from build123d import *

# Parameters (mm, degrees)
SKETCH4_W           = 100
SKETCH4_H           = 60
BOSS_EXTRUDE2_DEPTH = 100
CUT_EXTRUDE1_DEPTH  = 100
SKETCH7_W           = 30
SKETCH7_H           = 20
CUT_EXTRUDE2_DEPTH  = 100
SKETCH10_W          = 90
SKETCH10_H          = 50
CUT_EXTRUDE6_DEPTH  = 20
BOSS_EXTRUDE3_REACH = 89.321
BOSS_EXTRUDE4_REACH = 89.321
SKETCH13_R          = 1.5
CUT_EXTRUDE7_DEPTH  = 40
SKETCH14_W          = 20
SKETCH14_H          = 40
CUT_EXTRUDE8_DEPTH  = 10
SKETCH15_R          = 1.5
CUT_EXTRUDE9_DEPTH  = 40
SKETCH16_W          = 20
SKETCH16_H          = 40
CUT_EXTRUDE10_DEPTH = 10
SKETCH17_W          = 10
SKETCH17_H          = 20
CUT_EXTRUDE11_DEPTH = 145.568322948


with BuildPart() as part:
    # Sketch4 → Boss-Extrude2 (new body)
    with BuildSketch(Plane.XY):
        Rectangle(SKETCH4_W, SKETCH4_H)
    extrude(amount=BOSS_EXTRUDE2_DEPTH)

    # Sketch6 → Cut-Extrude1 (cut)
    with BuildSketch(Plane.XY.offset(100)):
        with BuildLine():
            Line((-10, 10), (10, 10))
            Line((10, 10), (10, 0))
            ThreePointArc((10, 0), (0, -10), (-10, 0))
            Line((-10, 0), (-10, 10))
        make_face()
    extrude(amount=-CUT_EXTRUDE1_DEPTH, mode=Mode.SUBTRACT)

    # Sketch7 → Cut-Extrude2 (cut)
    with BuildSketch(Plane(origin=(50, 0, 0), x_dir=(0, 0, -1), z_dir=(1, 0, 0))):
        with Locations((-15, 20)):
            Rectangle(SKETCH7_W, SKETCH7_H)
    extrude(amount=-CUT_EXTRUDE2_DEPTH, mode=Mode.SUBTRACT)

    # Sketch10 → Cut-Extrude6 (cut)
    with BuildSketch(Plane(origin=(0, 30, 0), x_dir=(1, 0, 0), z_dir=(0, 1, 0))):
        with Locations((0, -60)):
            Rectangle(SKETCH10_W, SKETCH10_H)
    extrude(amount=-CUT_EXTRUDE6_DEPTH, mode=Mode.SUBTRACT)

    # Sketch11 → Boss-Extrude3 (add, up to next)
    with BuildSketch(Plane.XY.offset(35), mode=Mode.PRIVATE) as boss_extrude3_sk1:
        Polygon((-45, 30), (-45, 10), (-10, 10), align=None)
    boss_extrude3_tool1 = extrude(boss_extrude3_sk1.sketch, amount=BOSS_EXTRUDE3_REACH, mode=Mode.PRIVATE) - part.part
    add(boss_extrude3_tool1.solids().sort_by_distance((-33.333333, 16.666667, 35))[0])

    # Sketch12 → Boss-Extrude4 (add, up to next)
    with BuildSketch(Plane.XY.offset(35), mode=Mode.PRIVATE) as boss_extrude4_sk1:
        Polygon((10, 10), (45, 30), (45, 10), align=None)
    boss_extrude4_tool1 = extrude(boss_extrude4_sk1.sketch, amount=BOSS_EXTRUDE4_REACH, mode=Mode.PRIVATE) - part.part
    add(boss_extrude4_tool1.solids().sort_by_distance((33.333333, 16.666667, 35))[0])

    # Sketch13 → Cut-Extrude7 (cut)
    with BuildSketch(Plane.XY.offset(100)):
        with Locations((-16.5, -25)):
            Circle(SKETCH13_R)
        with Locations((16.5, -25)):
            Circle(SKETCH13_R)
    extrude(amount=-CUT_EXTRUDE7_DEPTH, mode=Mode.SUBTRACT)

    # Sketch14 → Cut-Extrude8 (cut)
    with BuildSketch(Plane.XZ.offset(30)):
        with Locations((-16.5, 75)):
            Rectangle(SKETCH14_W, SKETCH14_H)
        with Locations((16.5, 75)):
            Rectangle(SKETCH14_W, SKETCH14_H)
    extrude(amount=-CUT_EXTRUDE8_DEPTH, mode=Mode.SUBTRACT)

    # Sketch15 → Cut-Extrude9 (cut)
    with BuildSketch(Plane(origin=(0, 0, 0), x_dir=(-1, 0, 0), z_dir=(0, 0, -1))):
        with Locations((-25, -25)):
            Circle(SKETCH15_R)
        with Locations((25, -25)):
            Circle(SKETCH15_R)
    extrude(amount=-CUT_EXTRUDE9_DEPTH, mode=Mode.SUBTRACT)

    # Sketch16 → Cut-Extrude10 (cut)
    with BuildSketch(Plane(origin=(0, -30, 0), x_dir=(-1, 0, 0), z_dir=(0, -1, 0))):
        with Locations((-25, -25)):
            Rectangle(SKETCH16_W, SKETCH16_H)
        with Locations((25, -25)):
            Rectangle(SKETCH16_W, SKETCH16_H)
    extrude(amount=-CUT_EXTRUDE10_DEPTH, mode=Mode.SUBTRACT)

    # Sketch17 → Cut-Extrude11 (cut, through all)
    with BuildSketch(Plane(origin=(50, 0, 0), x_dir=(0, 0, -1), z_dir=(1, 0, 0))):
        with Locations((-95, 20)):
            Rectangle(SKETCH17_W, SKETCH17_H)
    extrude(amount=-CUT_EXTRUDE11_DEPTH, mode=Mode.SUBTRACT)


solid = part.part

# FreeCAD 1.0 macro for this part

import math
import FreeCAD as App
import Part
import Sketcher
Q = App.Units.Quantity


def add_polygon(sketch, points):
    """Adds a closed chain of lines whose ends are joined by coincident constraints."""
    first, n = sketch.GeometryCount, len(points)
    for a, b in zip(points, points[1:] + points[:1]):
        sketch.addGeometry(Part.LineSegment(App.Vector(*a, 0), App.Vector(*b, 0)), False)
    for i in range(n):
        sketch.addConstraint(Sketcher.Constraint("Coincident", first + i, 2, first + (i + 1) % n, 1))

doc = App.newDocument("Part")
body = doc.addObject("PartDesign::Body", "Body")

# Sketch on XY plane
sketch1 = body.newObject("Sketcher::SketchObject", "Sketch")
sketch1.AttachmentSupport = (doc.getObject("XY_Plane"), [""])
sketch1.MapMode = "FlatFace"
add_polygon(sketch1, [(-50, 30), (-50, -30), (50, -30), (50, 30)])  # lines 0-3
sketch1.addConstraint([
    Sketcher.Constraint("Vertical", 0),
    Sketcher.Constraint("Horizontal", 1),
    Sketcher.Constraint("Vertical", 2),
    Sketcher.Constraint("Horizontal", 3),
    Sketcher.Constraint("Symmetric", 0, 2, 2, 2, -1, 1),
    Sketcher.Constraint("DistanceX", 1, 1, 1, 2, Q("100 mm")),
    Sketcher.Constraint("DistanceY", 0, 2, 0, 1, Q("60 mm")),
])
pad1 = body.newObject("PartDesign::Pad", "Pad")
pad1.Profile = sketch1
pad1.Length = 100

# Sketch on XY plane
sketch2 = body.newObject("Sketcher::SketchObject", "Sketch001")
sketch2.AttachmentSupport = (doc.getObject("XY_Plane"), [""])
sketch2.MapMode = "FlatFace"
sketch2.AttachmentOffset = App.Placement(App.Vector(0, 0, 100), App.Rotation())
sketch2.addGeometry([
    Part.LineSegment(App.Vector(10, 10, 0), App.Vector(-10, 10, 0)),
    Part.LineSegment(App.Vector(-10, 10, 0), App.Vector(-10, 0, 0)),
    Part.ArcOfCircle(Part.Circle(App.Vector(0, 0, 0), App.Vector(0, 0, 1), 10), math.radians(180), math.radians(360)),
    Part.LineSegment(App.Vector(10, 0, 0), App.Vector(10, 10, 0)),
], False)
sketch2.addConstraint([
    Sketcher.Constraint("Coincident", 0, 2, 1, 1),
    Sketcher.Constraint("Tangent", 1, 2, 2, 1),
    Sketcher.Constraint("Tangent", 2, 2, 3, 1),
    Sketcher.Constraint("Coincident", 3, 2, 0, 1),
    Sketcher.Constraint("Horizontal", 0),
    Sketcher.Constraint("Vertical", 1),
    Sketcher.Constraint("Vertical", 3),
    Sketcher.Constraint("Coincident", 2, 3, -1, 1),
    Sketcher.Constraint("Radius", 2, Q("10 mm")),
    Sketcher.Constraint("DistanceY", 1, 2, 1, 1, Q("10 mm")),
])
pocket1 = body.newObject("PartDesign::Pocket", "Pocket")
pocket1.Profile = sketch2
pocket1.Length = 100

# Sketch on YZ plane
sketch3 = body.newObject("Sketcher::SketchObject", "Sketch002")
sketch3.AttachmentSupport = (doc.getObject("YZ_Plane"), [""])
sketch3.MapMode = "FlatFace"
sketch3.AttachmentOffset = App.Placement(App.Vector(0, 0, 50), App.Rotation())
add_polygon(sketch3, [(30, 30), (10, 30), (10, 0), (30, 0)])  # lines 0-3
sketch3.addConstraint([
    Sketcher.Constraint("Horizontal", 0),
    Sketcher.Constraint("Vertical", 1),
    Sketcher.Constraint("Horizontal", 2),
    Sketcher.Constraint("Vertical", 3),
    Sketcher.Constraint("PointOnObject", 1, 2, -1),
    Sketcher.Constraint("DistanceX", 0, 2, 0, 1, Q("20 mm")),
    Sketcher.Constraint("DistanceY", 1, 2, 1, 1, Q("30 mm")),
    Sketcher.Constraint("DistanceX", -1, 1, 0, 2, Q("10 mm")),
])
pocket2 = body.newObject("PartDesign::Pocket", "Pocket001")
pocket2.Profile = sketch3
pocket2.Length = 100

# Sketch on XZ plane
sketch4 = body.newObject("Sketcher::SketchObject", "Sketch003")
sketch4.AttachmentSupport = (doc.getObject("XZ_Plane"), [""])
sketch4.MapMode = "FlatFace"
sketch4.AttachmentOffset = App.Placement(App.Vector(0, 0, -30), App.Rotation())
add_polygon(sketch4, [(-45, 35), (-45, 85), (45, 85), (45, 35)])  # lines 0-3
sketch4.addConstraint([
    Sketcher.Constraint("Vertical", 0),
    Sketcher.Constraint("Horizontal", 1),
    Sketcher.Constraint("Vertical", 2),
    Sketcher.Constraint("Horizontal", 3),
    Sketcher.Constraint("DistanceX", 1, 1, 1, 2, Q("90 mm")),
    Sketcher.Constraint("DistanceY", 0, 1, 0, 2, Q("50 mm")),
    Sketcher.Constraint("DistanceX", 0, 2, -1, 1, Q("45 mm")),
    Sketcher.Constraint("DistanceY", -1, 1, 0, 2, Q("85 mm")),
])
pocket3 = body.newObject("PartDesign::Pocket", "Pocket002")
pocket3.Profile = sketch4
pocket3.Length = 20
pocket3.Reversed = True

# Sketch on XY plane
sketch5 = body.newObject("Sketcher::SketchObject", "Sketch004")
sketch5.AttachmentSupport = (doc.getObject("XY_Plane"), [""])
sketch5.MapMode = "FlatFace"
sketch5.AttachmentOffset = App.Placement(App.Vector(0, 0, 35), App.Rotation())
add_polygon(sketch5, [(-45, 30), (-45, 10), (-10, 10)])  # lines 0-2
sketch5.addConstraint([
    Sketcher.Constraint("Vertical", 0),
    Sketcher.Constraint("Horizontal", 1),
    Sketcher.Constraint("DistanceX", 1, 1, 1, 2, Q("35 mm")),
    Sketcher.Constraint("DistanceY", 0, 2, 0, 1, Q("20 mm")),
    Sketcher.Constraint("DistanceX", 0, 2, -1, 1, Q("45 mm")),
    Sketcher.Constraint("DistanceY", -1, 1, 0, 2, Q("10 mm")),
])
pad2 = body.newObject("PartDesign::Pad", "Pad001")
pad2.Profile = sketch5
pad2.Type = "UpToFirst"

# Sketch on XY plane
sketch6 = body.newObject("Sketcher::SketchObject", "Sketch005")
sketch6.AttachmentSupport = (doc.getObject("XY_Plane"), [""])
sketch6.MapMode = "FlatFace"
sketch6.AttachmentOffset = App.Placement(App.Vector(0, 0, 35), App.Rotation())
add_polygon(sketch6, [(45, 30), (10, 10), (45, 10)])  # lines 0-2
sketch6.addConstraint([
    Sketcher.Constraint("Horizontal", 1),
    Sketcher.Constraint("Vertical", 2),
    Sketcher.Constraint("DistanceX", 1, 1, 1, 2, Q("35 mm")),
    Sketcher.Constraint("DistanceY", 2, 1, 2, 2, Q("20 mm")),
    Sketcher.Constraint("DistanceX", -1, 1, 0, 2, Q("10 mm")),
    Sketcher.Constraint("DistanceY", -1, 1, 0, 2, Q("10 mm")),
])
pad3 = body.newObject("PartDesign::Pad", "Pad002")
pad3.Profile = sketch6
pad3.Type = "UpToFirst"

# Sketch on XY plane
sketch7 = body.newObject("Sketcher::SketchObject", "Sketch006")
sketch7.AttachmentSupport = (doc.getObject("XY_Plane"), [""])
sketch7.MapMode = "FlatFace"
sketch7.AttachmentOffset = App.Placement(App.Vector(0, 0, 100), App.Rotation())
sketch7.addGeometry([
    Part.Circle(App.Vector(-16.5, -25, 0), App.Vector(0, 0, 1), 1.5),
    Part.Circle(App.Vector(16.5, -25, 0), App.Vector(0, 0, 1), 1.5),
], False)
sketch7.addConstraint([
    Sketcher.Constraint("Equal", 0, 1),
    Sketcher.Constraint("Symmetric", 0, 3, 1, 3, -2),
    Sketcher.Constraint("Diameter", 0, Q("3 mm")),
    Sketcher.Constraint("DistanceY", 0, 3, -1, 1, Q("25 mm")),
    Sketcher.Constraint("DistanceX", 0, 3, 1, 3, Q("33 mm")),
])
pocket4 = body.newObject("PartDesign::Pocket", "Pocket003")
pocket4.Profile = sketch7
pocket4.Length = 40

# Sketch on XZ plane
sketch8 = body.newObject("Sketcher::SketchObject", "Sketch007")
sketch8.AttachmentSupport = (doc.getObject("XZ_Plane"), [""])
sketch8.MapMode = "FlatFace"
sketch8.AttachmentOffset = App.Placement(App.Vector(0, 0, 30), App.Rotation())
add_polygon(sketch8, [(-26.5, 95), (-26.5, 55), (-6.5, 55), (-6.5, 95)])  # lines 0-3
add_polygon(sketch8, [(6.5, 95), (6.5, 55), (26.5, 55), (26.5, 95)])  # lines 4-7
sketch8.addConstraint([
    Sketcher.Constraint("Vertical", 0),
    Sketcher.Constraint("Horizontal", 1),
    Sketcher.Constraint("Vertical", 2),
    Sketcher.Constraint("Horizontal", 3),
    Sketcher.Constraint("Vertical", 4),
    Sketcher.Constraint("Horizontal", 5),
    Sketcher.Constraint("Vertical", 6),
    Sketcher.Constraint("Horizontal", 7),
    Sketcher.Constraint("Symmetric", 1, 2, 4, 2, -2),
    Sketcher.Constraint("Symmetric", 3, 2, 6, 2, -2),
    Sketcher.Constraint("DistanceX", 1, 1, 1, 2, Q("20 mm")),
    Sketcher.Constraint("DistanceY", 0, 2, 0, 1, Q("40 mm")),
    Sketcher.Constraint("DistanceY", -1, 1, 0, 2, Q("55 mm")),
    Sketcher.Constraint("DistanceX", 1, 2, 4, 2, Q("13 mm")),
])
pocket5 = body.newObject("PartDesign::Pocket", "Pocket004")
pocket5.Profile = sketch8
pocket5.Length = 10

# Sketch on XY plane
sketch9 = body.newObject("Sketcher::SketchObject", "Sketch008")
sketch9.AttachmentSupport = (doc.getObject("XY_Plane"), [""])
sketch9.MapMode = "FlatFace"
sketch9.addGeometry([
    Part.Circle(App.Vector(25, -25, 0), App.Vector(0, 0, 1), 1.5),
    Part.Circle(App.Vector(-25, -25, 0), App.Vector(0, 0, 1), 1.5),
], False)
sketch9.addConstraint([
    Sketcher.Constraint("Equal", 0, 1),
    Sketcher.Constraint("Symmetric", 0, 3, 1, 3, -2),
    Sketcher.Constraint("Diameter", 0, Q("3 mm")),
    Sketcher.Constraint("DistanceX", -1, 1, 0, 3, Q("25 mm")),
    Sketcher.Constraint("DistanceY", 0, 3, -1, 1, Q("25 mm")),
])
pocket6 = body.newObject("PartDesign::Pocket", "Pocket005")
pocket6.Profile = sketch9
pocket6.Length = 40
pocket6.Reversed = True

# Sketch on XZ plane
sketch10 = body.newObject("Sketcher::SketchObject", "Sketch009")
sketch10.AttachmentSupport = (doc.getObject("XZ_Plane"), [""])
sketch10.MapMode = "FlatFace"
sketch10.AttachmentOffset = App.Placement(App.Vector(0, 0, 30), App.Rotation())
add_polygon(sketch10, [(35, 5), (35, 45), (15, 45), (15, 5)])  # lines 0-3
add_polygon(sketch10, [(-15, 5), (-15, 45), (-35, 45), (-35, 5)])  # lines 4-7
sketch10.addConstraint([
    Sketcher.Constraint("Vertical", 0),
    Sketcher.Constraint("Horizontal", 1),
    Sketcher.Constraint("Vertical", 2),
    Sketcher.Constraint("Horizontal", 3),
    Sketcher.Constraint("Vertical", 4),
    Sketcher.Constraint("Horizontal", 5),
    Sketcher.Constraint("Vertical", 6),
    Sketcher.Constraint("Horizontal", 7),
    Sketcher.Constraint("Symmetric", 1, 2, 4, 2, -2),
    Sketcher.Constraint("Symmetric", 3, 2, 6, 2, -2),
    Sketcher.Constraint("DistanceX", 1, 2, 1, 1, Q("20 mm")),
    Sketcher.Constraint("DistanceY", 0, 1, 0, 2, Q("40 mm")),
    Sketcher.Constraint("DistanceX", -1, 1, 0, 2, Q("35 mm")),
    Sketcher.Constraint("DistanceY", -1, 1, 0, 2, Q("45 mm")),
])
pocket7 = body.newObject("PartDesign::Pocket", "Pocket006")
pocket7.Profile = sketch10
pocket7.Length = 10

# Sketch on YZ plane
sketch11 = body.newObject("Sketcher::SketchObject", "Sketch010")
sketch11.AttachmentSupport = (doc.getObject("YZ_Plane"), [""])
sketch11.MapMode = "FlatFace"
sketch11.AttachmentOffset = App.Placement(App.Vector(0, 0, 50), App.Rotation())
add_polygon(sketch11, [(30, 100), (10, 100), (10, 90), (30, 90)])  # lines 0-3
sketch11.addConstraint([
    Sketcher.Constraint("Horizontal", 0),
    Sketcher.Constraint("Vertical", 1),
    Sketcher.Constraint("Horizontal", 2),
    Sketcher.Constraint("Vertical", 3),
    Sketcher.Constraint("DistanceX", 0, 2, 0, 1, Q("20 mm")),
    Sketcher.Constraint("DistanceY", 1, 2, 1, 1, Q("10 mm")),
    Sketcher.Constraint("DistanceX", -1, 1, 0, 2, Q("10 mm")),
    Sketcher.Constraint("DistanceY", -1, 1, 0, 2, Q("100 mm")),
])
pocket8 = body.newObject("PartDesign::Pocket", "Pocket007")
pocket8.Profile = sketch11
pocket8.Type = "ThroughAll"

doc.recompute()
